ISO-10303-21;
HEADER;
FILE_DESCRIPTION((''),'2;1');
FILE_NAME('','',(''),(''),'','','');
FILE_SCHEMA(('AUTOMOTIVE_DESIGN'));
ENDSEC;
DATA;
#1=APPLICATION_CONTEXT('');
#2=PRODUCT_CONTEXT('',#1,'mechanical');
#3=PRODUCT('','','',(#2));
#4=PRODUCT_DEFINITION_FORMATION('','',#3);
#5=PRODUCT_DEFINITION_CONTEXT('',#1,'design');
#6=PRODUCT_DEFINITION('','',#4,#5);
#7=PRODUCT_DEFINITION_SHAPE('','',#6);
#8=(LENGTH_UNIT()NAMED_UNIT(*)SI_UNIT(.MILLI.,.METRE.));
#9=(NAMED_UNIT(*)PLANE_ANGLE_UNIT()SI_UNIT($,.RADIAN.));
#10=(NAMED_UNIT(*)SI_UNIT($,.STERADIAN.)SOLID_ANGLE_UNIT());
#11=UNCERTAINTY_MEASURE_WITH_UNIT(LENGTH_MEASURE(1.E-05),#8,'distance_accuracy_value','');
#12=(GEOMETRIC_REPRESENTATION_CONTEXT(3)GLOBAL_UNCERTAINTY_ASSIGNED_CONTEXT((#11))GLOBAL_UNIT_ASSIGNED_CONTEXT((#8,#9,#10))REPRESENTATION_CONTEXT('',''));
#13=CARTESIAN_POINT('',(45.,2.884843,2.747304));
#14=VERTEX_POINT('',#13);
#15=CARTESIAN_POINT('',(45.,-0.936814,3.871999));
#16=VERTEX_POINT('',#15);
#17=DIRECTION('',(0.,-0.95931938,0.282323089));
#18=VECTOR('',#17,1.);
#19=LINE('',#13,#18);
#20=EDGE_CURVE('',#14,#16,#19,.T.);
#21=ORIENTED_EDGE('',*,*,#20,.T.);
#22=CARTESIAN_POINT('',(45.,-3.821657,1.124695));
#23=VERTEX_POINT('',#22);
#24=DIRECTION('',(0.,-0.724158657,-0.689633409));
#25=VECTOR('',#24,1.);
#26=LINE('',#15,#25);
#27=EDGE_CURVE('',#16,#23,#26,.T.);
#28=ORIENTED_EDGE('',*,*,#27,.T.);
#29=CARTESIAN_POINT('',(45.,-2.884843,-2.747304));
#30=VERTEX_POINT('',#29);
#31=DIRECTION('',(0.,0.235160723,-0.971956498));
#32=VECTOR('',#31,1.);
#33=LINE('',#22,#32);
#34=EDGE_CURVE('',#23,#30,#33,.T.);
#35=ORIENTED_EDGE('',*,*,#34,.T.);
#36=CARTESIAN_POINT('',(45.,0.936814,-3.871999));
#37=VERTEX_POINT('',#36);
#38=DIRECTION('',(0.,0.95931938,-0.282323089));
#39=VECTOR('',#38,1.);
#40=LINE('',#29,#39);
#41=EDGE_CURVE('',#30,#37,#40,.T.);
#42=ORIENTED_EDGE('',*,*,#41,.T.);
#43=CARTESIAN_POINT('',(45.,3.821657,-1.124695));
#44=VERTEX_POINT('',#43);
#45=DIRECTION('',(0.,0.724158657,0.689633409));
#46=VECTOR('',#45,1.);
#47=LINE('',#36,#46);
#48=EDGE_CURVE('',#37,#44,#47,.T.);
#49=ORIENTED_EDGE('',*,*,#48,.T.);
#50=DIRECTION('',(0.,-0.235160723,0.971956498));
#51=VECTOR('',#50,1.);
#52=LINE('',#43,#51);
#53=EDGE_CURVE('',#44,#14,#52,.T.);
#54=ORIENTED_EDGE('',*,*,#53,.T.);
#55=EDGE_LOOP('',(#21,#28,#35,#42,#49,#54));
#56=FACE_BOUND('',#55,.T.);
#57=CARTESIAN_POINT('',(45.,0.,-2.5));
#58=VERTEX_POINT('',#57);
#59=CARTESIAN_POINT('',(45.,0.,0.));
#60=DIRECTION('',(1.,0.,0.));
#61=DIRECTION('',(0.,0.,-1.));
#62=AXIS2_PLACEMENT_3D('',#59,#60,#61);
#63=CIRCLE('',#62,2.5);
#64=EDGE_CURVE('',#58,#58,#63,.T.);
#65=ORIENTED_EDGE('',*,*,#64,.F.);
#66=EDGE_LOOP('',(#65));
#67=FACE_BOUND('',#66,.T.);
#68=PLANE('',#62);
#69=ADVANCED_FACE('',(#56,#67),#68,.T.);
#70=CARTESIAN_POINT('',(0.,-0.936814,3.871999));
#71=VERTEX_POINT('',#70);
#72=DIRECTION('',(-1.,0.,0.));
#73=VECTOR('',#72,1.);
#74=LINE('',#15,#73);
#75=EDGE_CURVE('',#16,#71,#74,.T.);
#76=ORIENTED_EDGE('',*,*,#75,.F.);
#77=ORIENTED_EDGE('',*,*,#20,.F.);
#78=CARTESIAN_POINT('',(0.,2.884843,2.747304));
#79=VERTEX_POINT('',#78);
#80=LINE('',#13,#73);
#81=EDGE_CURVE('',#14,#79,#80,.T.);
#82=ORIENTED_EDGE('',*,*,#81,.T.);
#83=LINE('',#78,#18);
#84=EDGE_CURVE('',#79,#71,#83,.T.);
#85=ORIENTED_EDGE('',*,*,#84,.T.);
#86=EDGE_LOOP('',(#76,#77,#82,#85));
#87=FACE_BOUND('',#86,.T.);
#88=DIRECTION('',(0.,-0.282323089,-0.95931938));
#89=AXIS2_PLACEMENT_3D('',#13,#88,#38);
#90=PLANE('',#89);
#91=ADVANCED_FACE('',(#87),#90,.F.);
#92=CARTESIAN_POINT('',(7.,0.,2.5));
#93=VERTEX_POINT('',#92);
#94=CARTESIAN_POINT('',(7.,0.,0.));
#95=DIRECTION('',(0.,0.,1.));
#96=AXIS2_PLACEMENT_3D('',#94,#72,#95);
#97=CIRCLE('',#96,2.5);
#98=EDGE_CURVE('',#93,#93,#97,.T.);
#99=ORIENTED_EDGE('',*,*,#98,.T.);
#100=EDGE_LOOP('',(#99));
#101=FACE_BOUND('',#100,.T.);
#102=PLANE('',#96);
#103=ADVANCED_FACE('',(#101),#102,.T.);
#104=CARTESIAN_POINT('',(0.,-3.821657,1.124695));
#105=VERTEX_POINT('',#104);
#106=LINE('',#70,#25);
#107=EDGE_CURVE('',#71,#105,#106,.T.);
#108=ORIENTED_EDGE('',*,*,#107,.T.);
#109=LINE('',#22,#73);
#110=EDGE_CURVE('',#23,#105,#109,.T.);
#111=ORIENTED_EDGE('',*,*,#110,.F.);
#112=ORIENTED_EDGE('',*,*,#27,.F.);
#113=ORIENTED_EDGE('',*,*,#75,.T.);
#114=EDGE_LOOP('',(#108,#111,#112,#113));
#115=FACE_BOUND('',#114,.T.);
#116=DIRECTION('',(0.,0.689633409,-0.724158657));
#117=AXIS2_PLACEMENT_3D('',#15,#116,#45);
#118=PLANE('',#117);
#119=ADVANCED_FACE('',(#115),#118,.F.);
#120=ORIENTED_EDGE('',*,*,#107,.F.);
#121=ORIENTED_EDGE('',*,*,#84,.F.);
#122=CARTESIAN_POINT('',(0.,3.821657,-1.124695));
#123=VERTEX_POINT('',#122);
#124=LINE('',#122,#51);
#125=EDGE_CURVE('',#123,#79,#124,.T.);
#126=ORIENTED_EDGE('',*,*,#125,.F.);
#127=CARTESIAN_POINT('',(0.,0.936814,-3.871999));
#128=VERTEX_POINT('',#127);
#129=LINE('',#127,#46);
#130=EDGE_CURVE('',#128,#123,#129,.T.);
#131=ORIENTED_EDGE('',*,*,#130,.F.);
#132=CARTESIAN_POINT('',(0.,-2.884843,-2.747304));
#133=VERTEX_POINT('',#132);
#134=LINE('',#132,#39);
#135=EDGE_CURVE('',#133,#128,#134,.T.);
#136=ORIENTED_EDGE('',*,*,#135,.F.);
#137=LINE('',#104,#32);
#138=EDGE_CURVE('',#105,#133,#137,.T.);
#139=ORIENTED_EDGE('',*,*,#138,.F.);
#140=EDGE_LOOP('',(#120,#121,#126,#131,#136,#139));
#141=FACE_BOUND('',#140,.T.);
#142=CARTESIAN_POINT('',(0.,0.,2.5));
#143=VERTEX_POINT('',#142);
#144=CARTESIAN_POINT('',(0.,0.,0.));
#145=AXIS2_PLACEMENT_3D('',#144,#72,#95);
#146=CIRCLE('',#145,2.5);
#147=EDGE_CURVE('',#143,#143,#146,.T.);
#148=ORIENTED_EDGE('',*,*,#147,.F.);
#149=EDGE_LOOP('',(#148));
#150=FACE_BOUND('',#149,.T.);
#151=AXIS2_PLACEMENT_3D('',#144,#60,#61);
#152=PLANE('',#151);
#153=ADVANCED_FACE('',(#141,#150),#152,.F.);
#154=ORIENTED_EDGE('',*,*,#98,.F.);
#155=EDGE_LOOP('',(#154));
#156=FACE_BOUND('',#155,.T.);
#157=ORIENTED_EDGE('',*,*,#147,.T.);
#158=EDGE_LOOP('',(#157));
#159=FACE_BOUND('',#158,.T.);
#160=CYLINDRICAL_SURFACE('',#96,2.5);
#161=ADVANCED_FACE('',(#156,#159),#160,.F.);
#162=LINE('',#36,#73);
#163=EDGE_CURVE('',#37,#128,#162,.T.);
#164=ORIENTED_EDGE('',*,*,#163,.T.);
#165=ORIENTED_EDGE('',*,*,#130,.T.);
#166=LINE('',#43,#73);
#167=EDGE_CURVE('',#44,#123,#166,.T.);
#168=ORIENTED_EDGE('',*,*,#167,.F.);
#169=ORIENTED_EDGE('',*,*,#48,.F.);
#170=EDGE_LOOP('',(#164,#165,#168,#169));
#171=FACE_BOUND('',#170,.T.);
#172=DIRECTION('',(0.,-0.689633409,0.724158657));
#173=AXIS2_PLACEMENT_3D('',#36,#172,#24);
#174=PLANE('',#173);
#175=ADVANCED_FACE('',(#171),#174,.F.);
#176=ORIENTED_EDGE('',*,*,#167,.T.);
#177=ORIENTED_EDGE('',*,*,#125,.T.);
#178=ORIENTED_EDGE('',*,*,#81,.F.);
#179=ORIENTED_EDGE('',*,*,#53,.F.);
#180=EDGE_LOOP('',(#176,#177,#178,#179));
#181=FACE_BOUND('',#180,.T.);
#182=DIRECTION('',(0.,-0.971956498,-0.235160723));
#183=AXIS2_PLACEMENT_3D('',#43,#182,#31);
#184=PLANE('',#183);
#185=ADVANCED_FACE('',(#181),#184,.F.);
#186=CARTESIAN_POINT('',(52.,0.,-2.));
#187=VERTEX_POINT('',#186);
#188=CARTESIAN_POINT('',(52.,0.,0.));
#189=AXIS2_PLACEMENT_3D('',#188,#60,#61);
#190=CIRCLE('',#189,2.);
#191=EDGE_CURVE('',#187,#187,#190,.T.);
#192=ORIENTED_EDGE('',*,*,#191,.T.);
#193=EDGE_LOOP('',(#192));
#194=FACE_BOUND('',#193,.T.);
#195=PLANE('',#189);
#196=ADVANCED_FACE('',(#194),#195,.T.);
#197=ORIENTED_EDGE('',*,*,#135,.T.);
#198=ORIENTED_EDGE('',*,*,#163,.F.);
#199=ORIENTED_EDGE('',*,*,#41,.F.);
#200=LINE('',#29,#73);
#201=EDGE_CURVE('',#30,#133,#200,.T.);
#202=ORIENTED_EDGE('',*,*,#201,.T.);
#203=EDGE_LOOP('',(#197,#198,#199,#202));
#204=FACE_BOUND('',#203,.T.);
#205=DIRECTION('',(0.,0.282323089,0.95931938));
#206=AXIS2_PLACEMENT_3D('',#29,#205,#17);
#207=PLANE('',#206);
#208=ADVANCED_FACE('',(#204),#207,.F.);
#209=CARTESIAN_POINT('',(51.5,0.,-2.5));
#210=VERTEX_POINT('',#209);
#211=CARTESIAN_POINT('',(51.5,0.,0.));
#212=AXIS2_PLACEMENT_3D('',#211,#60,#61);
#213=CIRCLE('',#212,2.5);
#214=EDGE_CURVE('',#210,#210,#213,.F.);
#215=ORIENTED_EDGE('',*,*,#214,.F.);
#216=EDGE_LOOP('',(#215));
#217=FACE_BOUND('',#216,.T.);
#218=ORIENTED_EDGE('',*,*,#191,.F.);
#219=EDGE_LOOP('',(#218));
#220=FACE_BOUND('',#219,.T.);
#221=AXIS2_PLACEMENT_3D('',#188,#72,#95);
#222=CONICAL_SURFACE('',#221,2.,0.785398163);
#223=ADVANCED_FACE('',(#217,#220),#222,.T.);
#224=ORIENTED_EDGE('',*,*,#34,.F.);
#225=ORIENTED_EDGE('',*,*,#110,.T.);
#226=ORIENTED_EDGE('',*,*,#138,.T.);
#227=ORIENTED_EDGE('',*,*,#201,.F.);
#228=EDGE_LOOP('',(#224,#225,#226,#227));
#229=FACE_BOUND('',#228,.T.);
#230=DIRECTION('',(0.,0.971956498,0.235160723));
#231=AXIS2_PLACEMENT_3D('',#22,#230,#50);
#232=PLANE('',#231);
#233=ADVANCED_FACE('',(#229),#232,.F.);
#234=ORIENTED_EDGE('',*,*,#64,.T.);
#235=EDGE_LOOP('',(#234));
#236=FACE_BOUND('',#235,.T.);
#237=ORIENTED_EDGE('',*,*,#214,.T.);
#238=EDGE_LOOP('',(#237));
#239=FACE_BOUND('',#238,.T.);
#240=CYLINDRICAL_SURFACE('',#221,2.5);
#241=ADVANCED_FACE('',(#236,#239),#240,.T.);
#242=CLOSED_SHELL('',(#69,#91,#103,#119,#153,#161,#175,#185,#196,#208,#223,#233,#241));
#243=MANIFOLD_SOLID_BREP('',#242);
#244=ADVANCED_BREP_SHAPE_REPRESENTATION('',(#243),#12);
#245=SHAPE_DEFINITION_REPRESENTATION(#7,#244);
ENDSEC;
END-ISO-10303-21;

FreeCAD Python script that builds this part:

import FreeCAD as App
import Part
import Sketcher
Q = App.Units.Quantity


def edges_at(feature, points):
    """Names of the edges that pass closest to the given points."""
    edges = feature.Shape.Edges
    near = lambda p: min(range(len(edges)), key=lambda i: edges[i].distToShape(Part.Vertex(*p))[0])
    return sorted({f"Edge{near(p) + 1}" for p in points})


def add_polygon(sketch, points):
    """Adds a closed chain of lines whose ends are joined by coincident constraints."""
    first, n = sketch.GeometryCount, len(points)
    for a, b in zip(points, points[1:] + points[:1]):
        sketch.addGeometry(Part.LineSegment(App.Vector(*a, 0), App.Vector(*b, 0)), False)
    for i in range(n):
        sketch.addConstraint(Sketcher.Constraint("Coincident", first + i, 2, first + (i + 1) % n, 1))

doc = App.newDocument("Part")
body = doc.addObject("PartDesign::Body", "Body")

sketch1 = body.newObject("Sketcher::SketchObject", "Sketch")
sketch1.AttachmentSupport = (doc.getObject("YZ_Plane"), [""])
sketch1.MapMode = "FlatFace"
add_polygon(sketch1, [(-2.9, -2.7), (0.9, -3.9), (3.8, -1.1), (2.9, 2.7), (-0.9, 3.9), (-3.8, 1.1)])
sketch1.addConstraint([
    Sketcher.Constraint("Symmetric", 0, 2, 3, 2, -1, 1),
    Sketcher.Constraint("Symmetric", 1, 2, 4, 2, -1, 1),
    Sketcher.Constraint("Symmetric", 2, 2, 5, 2, -1, 1),
    Sketcher.Constraint("Equal", 0, 1),
    Sketcher.Constraint("Equal", 1, 2),
    Sketcher.Constraint("DistanceY", 0, 2, -1, 1, Q("3.871999 mm")),
    Sketcher.Constraint("DistanceY", 1, 2, 2, 2, Q("3.871999 mm")),
    Sketcher.Constraint("DistanceX", 4, 2, 2, 2, Q("6.7065 mm")),
    Sketcher.Constraint("DistanceX", 0, 2, 2, 2, Q("1.948029 mm")),
])
pad1 = body.newObject("PartDesign::Pad", "Pad")
pad1.Profile = sketch1
pad1.Length = 45

sketch2 = body.newObject("Sketcher::SketchObject", "Sketch001")
sketch2.AttachmentSupport = (doc.getObject("YZ_Plane"), [""])
sketch2.MapMode = "FlatFace"
sketch2.AttachmentOffset = App.Placement(App.Vector(0, 0, 45), App.Rotation())
sketch2.addGeometry(Part.Circle(App.Vector(0, 0, 0), App.Vector(0, 0, 1), 2.5), False)
sketch2.addConstraint([
    Sketcher.Constraint("Coincident", 0, 3, -1, 1),
    Sketcher.Constraint("Diameter", 0, Q("5 mm")),
])
pad2 = body.newObject("PartDesign::Pad", "Pad001")
pad2.Profile = sketch2
pad2.Length = 7
doc.recompute()

chamfer = body.newObject("PartDesign::Chamfer", "Chamfer")
chamfer.Base = (pad2, edges_at(pad2, [(52, 0, 2.5)]))
chamfer.Size = 0.5

sketch3 = body.newObject("Sketcher::SketchObject", "Sketch002")
sketch3.AttachmentSupport = (doc.getObject("YZ_Plane"), [""])
sketch3.MapMode = "FlatFace"
sketch3.addGeometry(Part.Circle(App.Vector(0, 0, 0), App.Vector(0, 0, 1), 2.5), False)
sketch3.addConstraint([
    Sketcher.Constraint("Coincident", 0, 3, -1, 1),
    Sketcher.Constraint("Diameter", 0, Q("5 mm")),
])
pocket1 = body.newObject("PartDesign::Pocket", "Pocket")
pocket1.Profile = sketch3
pocket1.Length = 7
pocket1.Reversed = True

doc.recompute()
